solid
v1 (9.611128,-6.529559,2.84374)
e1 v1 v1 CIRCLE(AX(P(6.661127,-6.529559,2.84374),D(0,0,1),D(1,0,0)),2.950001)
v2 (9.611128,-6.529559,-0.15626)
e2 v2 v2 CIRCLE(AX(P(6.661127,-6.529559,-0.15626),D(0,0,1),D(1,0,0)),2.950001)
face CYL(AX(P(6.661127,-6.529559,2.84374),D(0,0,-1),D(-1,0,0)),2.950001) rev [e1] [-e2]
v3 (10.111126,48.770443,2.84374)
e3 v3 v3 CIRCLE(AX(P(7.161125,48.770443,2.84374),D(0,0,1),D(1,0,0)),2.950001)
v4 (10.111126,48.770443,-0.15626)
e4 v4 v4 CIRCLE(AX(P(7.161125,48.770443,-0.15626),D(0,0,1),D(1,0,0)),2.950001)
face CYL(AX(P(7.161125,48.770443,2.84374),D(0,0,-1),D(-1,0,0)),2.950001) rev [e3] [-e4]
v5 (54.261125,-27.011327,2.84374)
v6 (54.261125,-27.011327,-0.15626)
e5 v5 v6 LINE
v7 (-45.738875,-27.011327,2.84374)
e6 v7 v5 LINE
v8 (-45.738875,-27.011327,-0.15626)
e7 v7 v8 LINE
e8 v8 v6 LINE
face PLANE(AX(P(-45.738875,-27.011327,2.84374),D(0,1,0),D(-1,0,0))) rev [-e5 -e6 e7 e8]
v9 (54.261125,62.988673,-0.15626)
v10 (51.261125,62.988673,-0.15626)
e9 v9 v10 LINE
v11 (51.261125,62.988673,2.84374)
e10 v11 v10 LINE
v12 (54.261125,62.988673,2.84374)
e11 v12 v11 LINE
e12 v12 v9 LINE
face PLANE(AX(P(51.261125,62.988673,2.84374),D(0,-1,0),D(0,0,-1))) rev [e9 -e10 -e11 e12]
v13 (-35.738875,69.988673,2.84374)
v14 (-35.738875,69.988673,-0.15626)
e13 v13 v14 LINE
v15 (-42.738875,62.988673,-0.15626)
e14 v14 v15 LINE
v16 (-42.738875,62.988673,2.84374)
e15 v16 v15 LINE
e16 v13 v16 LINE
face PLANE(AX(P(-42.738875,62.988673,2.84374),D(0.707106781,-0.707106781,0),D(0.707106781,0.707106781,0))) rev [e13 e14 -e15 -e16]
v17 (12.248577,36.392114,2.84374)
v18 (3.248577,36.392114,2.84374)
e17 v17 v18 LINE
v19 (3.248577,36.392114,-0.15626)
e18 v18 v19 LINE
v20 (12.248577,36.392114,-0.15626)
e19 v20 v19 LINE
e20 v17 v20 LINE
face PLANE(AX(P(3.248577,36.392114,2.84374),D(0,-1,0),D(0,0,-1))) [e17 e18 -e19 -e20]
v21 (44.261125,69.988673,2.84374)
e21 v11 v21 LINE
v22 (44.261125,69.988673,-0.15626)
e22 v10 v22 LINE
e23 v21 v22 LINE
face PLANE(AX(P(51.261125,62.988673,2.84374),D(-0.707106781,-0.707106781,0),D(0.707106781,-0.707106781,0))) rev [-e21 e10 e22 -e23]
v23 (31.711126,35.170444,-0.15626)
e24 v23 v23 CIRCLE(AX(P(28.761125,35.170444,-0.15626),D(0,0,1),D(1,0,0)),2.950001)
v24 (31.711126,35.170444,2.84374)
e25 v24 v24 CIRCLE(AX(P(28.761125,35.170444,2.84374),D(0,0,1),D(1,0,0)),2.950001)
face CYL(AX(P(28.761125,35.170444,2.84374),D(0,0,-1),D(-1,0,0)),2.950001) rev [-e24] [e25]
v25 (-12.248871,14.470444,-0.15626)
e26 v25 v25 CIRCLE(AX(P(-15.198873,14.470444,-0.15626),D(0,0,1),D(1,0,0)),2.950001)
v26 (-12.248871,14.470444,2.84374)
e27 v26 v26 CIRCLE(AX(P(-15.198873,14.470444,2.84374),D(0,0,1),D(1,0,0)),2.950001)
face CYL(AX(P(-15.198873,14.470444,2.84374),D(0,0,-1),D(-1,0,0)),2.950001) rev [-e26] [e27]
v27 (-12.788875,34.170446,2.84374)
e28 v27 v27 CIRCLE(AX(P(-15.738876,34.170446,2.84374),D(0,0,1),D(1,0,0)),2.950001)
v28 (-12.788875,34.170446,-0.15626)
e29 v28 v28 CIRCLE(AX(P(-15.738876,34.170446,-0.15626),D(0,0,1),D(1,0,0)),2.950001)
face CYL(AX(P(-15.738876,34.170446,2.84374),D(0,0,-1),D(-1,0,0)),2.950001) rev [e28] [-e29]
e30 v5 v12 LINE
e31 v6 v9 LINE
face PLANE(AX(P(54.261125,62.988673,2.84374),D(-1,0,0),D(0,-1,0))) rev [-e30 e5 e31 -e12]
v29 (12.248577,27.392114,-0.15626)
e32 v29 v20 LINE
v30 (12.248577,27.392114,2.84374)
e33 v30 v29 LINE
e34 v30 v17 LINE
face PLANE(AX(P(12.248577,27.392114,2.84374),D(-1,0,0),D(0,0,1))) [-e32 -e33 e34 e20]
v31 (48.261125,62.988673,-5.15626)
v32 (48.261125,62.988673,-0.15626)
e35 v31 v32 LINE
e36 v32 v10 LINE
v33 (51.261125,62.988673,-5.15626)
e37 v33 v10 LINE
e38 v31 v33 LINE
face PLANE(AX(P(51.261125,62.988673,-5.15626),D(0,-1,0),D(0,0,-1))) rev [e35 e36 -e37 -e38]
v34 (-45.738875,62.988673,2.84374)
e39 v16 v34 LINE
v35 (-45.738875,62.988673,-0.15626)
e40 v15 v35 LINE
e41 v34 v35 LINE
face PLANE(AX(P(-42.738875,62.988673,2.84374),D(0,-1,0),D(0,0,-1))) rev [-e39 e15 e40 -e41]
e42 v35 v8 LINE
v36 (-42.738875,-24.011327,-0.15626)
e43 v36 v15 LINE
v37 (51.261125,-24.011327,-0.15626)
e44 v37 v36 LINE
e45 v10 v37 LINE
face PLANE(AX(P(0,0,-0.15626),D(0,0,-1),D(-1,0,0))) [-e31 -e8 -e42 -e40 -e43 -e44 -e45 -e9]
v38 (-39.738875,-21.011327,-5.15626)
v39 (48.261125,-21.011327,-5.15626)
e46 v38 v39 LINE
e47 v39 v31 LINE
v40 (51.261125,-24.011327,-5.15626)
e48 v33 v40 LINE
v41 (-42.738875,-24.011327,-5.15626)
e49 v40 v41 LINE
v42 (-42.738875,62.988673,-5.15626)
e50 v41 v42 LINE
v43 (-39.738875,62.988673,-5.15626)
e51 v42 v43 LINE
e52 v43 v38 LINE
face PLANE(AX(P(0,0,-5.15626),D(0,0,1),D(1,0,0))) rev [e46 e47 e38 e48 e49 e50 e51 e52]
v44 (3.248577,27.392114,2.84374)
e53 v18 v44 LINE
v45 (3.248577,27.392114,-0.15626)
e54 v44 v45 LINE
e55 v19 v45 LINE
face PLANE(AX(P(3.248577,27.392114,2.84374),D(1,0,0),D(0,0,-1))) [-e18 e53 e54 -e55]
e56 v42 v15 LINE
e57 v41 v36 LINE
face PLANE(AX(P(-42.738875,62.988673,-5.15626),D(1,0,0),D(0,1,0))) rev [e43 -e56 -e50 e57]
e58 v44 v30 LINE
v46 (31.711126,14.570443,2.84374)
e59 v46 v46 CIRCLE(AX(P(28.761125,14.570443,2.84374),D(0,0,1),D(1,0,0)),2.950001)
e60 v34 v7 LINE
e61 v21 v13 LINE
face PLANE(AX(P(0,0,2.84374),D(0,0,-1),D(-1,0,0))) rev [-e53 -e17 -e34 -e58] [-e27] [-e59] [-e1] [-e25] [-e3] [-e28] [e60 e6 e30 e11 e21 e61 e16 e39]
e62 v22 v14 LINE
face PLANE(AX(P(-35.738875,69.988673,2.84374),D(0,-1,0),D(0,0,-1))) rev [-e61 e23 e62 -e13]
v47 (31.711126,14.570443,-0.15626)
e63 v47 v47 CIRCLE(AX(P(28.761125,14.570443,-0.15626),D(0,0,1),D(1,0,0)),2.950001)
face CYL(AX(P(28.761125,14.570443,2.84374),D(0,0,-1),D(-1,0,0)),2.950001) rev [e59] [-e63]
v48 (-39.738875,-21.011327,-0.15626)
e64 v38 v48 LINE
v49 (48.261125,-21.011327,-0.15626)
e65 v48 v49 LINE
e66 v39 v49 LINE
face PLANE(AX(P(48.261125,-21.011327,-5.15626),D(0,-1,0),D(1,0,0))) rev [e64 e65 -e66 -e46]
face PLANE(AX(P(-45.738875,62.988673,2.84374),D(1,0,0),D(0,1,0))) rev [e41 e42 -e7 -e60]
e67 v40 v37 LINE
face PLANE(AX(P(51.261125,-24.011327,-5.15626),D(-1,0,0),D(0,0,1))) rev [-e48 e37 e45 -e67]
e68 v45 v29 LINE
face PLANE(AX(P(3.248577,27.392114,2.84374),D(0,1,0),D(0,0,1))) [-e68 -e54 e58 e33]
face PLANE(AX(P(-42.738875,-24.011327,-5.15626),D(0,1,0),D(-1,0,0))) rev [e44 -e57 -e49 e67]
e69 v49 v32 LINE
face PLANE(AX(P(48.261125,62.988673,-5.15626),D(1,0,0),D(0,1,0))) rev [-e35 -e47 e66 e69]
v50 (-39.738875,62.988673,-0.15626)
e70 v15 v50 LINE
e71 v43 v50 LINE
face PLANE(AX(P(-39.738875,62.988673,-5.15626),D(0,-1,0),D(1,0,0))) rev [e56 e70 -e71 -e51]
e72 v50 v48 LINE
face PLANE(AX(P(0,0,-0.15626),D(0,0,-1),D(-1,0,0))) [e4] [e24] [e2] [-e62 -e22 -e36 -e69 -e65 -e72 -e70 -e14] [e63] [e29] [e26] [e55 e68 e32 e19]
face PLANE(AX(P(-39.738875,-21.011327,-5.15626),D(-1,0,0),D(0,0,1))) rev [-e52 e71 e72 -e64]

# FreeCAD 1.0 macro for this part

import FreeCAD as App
import Part
import Sketcher
from FreeCAD import Vector
Q = App.Units.Quantity


def add_polygon(sketch, points):
    """Adds a closed chain of lines whose ends are joined by coincident constraints."""
    first, n = sketch.GeometryCount, len(points)
    for a, b in zip(points, points[1:] + points[:1]):
        sketch.addGeometry(Part.LineSegment(App.Vector(*a, 0), App.Vector(*b, 0)), False)
    for i in range(n):
        sketch.addConstraint(Sketcher.Constraint("Coincident", first + i, 2, first + (i + 1) % n, 1))

doc = App.newDocument("Part")
params = doc.addObject("Spreadsheet::Sheet", "Params")
for row, (alias, value) in enumerate([
    ("sketch1_width", "80 mm"),
    ("sketch1_width2", "3 mm"),
    ("sketch1_width3", "100 mm"),
    ("sketch1_width4", "9 mm"),
    ("sketch1_height", "90 mm"),
    ("pad1_length", "3 mm"),
    ("sketch2_width", "3 mm"),
    ("sketch2_width2", "94 mm"),
    ("sketch2_height", "87 mm"),
    ("sketch2_height2", "84 mm"),
    ("pad2_length", "5 mm"),
], start=1):
    params.set(f"A{row}", alias)
    params.set(f"B{row}", "=" + value)
    params.setAlias(f"B{row}", alias)

body = doc.addObject("PartDesign::Body", "Body")

# Sketch on XY plane
sketch1 = body.newObject("Sketcher::SketchObject", "Sketch")
sketch1.AttachmentSupport = (doc.getObject("XY_Plane"), [""])
sketch1.MapMode = "FlatFace"
sketch1.AttachmentOffset = App.Placement(Vector(0, 0, -0.15626), App.Rotation())
add_polygon(sketch1, [(51.3, 63), (44.3, 70), (-35.7, 70), (-42.7, 63), (-45.7, 63), (-45.7, -27), (54.3, -27), (54.3, 63)])  # lines 0-7
sketch1.addGeometry(Part.Circle(Vector(-15.2, 14.5, 0), Vector(0, 0, 1), 3), False)  # 8
sketch1.addGeometry(Part.Circle(Vector(6.7, -6.5, 0), Vector(0, 0, 1), 3), False)  # 9
sketch1.addGeometry(Part.Circle(Vector(28.8, 14.6, 0), Vector(0, 0, 1), 3), False)  # 10
sketch1.addGeometry(Part.Circle(Vector(-15.7, 34.2, 0), Vector(0, 0, 1), 3), False)  # 11
add_polygon(sketch1, [(12.2, 27.4), (3.2, 27.4), (3.2, 36.4), (12.2, 36.4)])  # lines 12-15
sketch1.addGeometry(Part.Circle(Vector(28.8, 35.2, 0), Vector(0, 0, 1), 3), False)  # 16
sketch1.addGeometry(Part.Circle(Vector(7.2, 48.8, 0), Vector(0, 0, 1), 3), False)  # 17
sketch1.addConstraint([
    Sketcher.Constraint("Horizontal", 1),
    Sketcher.Constraint("Horizontal", 3),
    Sketcher.Constraint("Vertical", 4),
    Sketcher.Constraint("Horizontal", 5),
    Sketcher.Constraint("Vertical", 6),
    Sketcher.Constraint("Horizontal", 7),
    Sketcher.Constraint("Horizontal", 12),
    Sketcher.Constraint("Vertical", 13),
    Sketcher.Constraint("Horizontal", 14),
    Sketcher.Constraint("Vertical", 15),
    Sketcher.Constraint("Equal", 8, 9),
    Sketcher.Constraint("Equal", 9, 10),
    Sketcher.Constraint("Equal", 10, 11),
    Sketcher.Constraint("Equal", 11, 16),
    Sketcher.Constraint("Equal", 16, 17),
    Sketcher.Constraint("Perpendicular", 0, 2),
    Sketcher.Constraint("Horizontal", 3, 2, 6, 2),
    Sketcher.Constraint("Vertical", 10, 3, 16, 3),
    Sketcher.Constraint("Equal", 3, 7),
    Sketcher.Constraint("Equal", 14, 13),
    Sketcher.Constraint("Equal", 0, 2),
    Sketcher.Constraint("DistanceX", 1, 2, 1, 1, Q("80 mm")),
    Sketcher.Constraint("DistanceX", 3, 2, 3, 1, Q("3 mm")),
    Sketcher.Constraint("DistanceX", 5, 1, 5, 2, Q("100 mm")),
    Sketcher.Constraint("DistanceX", 12, 2, 12, 1, Q("9 mm")),
    Sketcher.Constraint("DistanceY", 4, 2, 4, 1, Q("90 mm")),
    Sketcher.Constraint("DistanceY", 11, 3, 16, 3, Q("0.999998 mm")),
    Sketcher.Constraint("DistanceX", 11, 3, 0, 2, Q("60.000001 mm")),
    Sketcher.Constraint("DistanceY", 8, 3, 10, 3, Q("0.1 mm")),
    Sketcher.Constraint("DistanceY", 8, 3, 11, 3, Q("19.700002 mm")),
    Sketcher.Constraint("DistanceX", 11, 3, 10, 3, Q("44.500001 mm")),
    Sketcher.Constraint("DistanceX", 17, 3, 16, 3, Q("21.600001 mm")),
    Sketcher.Constraint("DistanceY", 16, 3, 17, 3, Q("13.599999 mm")),
    Sketcher.Constraint("DistanceX", 4, 2, 9, 3, Q("52.400002 mm")),
    Sketcher.Constraint("DistanceX", 8, 3, 9, 3, Q("21.86 mm")),
    Sketcher.Constraint("Diameter", 8, Q("5.900002 mm")),
    Sketcher.Constraint("DistanceY", 9, 3, -1, 1, Q("6.529559 mm")),
    Sketcher.Constraint("DistanceY", 16, 3, 0, 2, Q("34.818229 mm")),
    Sketcher.Constraint("DistanceY", 12, 2, 11, 3, Q("6.778332 mm")),
    Sketcher.Constraint("DistanceX", 8, 3, 12, 2, Q("18.447449 mm")),
    Sketcher.Constraint("DistanceX", 8, 3, -1, 1, Q("15.198873 mm")),
    Sketcher.Constraint("DistanceY", -1, 1, 8, 3, Q("14.470444 mm")),
])
sketch1.setExpression("Constraints[33]", "Params.sketch1_width")
sketch1.setExpression("Constraints[34]", "Params.sketch1_width2")
sketch1.setExpression("Constraints[35]", "Params.sketch1_width3")
sketch1.setExpression("Constraints[36]", "Params.sketch1_width4")
sketch1.setExpression("Constraints[37]", "Params.sketch1_height")
pad1 = body.newObject("PartDesign::Pad", "Pad")
pad1.Profile = sketch1
pad1.setExpression("Length", "Params.pad1_length")

# Sketch on XY plane
sketch2 = body.newObject("Sketcher::SketchObject", "Sketch001")
sketch2.AttachmentSupport = (doc.getObject("XY_Plane"), [""])
sketch2.MapMode = "FlatFace"
sketch2.AttachmentOffset = App.Placement(Vector(0, 0, -0.15626), App.Rotation())
add_polygon(sketch2, [(48.3, 63), (51.3, 63), (51.3, -24), (-42.7, -24), (-42.7, 63), (-39.7, 63), (-39.7, -21), (48.3, -21)])  # lines 0-7
sketch2.addConstraint([
    Sketcher.Constraint("Horizontal", 0),
    Sketcher.Constraint("Vertical", 1),
    Sketcher.Constraint("Horizontal", 2),
    Sketcher.Constraint("Vertical", 3),
    Sketcher.Constraint("Horizontal", 4),
    Sketcher.Constraint("Vertical", 5),
    Sketcher.Constraint("Horizontal", 6),
    Sketcher.Constraint("Vertical", 7),
    Sketcher.Constraint("Horizontal", 0, 2, 3, 2),
    Sketcher.Constraint("Equal", 0, 4),
    Sketcher.Constraint("DistanceX", 0, 1, 0, 2, Q("3 mm")),
    Sketcher.Constraint("DistanceX", 2, 2, 2, 1, Q("94 mm")),
    Sketcher.Constraint("DistanceY", 1, 2, 1, 1, Q("87 mm")),
    Sketcher.Constraint("DistanceY", 5, 2, 5, 1, Q("84 mm")),
    Sketcher.Constraint("DistanceX", -1, 1, 0, 2, Q("51.261125 mm")),
    Sketcher.Constraint("DistanceY", -1, 1, 0, 2, Q("62.988673 mm")),
])
sketch2.setExpression("Constraints[18]", "Params.sketch2_width")
sketch2.setExpression("Constraints[19]", "Params.sketch2_width2")
sketch2.setExpression("Constraints[20]", "Params.sketch2_height")
sketch2.setExpression("Constraints[21]", "Params.sketch2_height2")
pad2 = body.newObject("PartDesign::Pad", "Pad001")
pad2.Profile = sketch2
pad2.setExpression("Length", "Params.pad2_length")
pad2.Reversed = True

doc.recompute()
